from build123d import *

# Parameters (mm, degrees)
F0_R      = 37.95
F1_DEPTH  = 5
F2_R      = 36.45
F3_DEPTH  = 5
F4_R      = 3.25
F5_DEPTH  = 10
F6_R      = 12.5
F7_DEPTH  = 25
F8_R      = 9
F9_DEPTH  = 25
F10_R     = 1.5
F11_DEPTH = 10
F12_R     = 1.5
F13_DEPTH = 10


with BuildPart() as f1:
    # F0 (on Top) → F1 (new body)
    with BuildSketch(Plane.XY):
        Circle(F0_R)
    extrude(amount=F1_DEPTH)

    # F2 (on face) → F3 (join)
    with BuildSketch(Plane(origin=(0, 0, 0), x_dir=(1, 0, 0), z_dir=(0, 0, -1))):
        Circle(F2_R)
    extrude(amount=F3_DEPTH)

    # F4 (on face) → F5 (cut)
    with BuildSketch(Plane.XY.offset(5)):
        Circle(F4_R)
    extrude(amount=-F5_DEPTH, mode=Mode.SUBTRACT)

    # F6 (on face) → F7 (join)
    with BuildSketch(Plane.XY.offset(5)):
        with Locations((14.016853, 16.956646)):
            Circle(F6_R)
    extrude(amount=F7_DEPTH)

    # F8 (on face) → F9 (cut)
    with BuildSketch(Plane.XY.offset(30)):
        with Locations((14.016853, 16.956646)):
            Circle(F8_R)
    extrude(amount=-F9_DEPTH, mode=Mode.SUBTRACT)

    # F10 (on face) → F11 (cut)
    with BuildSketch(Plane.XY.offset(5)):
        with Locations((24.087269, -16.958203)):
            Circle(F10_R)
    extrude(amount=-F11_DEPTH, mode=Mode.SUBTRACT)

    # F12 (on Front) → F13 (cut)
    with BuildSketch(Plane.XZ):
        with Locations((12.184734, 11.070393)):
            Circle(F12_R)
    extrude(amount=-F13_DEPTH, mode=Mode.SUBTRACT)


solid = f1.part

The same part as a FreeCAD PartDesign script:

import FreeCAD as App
import Part
import Sketcher

doc = App.newDocument("Part")
body = doc.addObject("PartDesign::Body", "Body")

# Sketch on XY plane
sketch1 = body.newObject("Sketcher::SketchObject", "Sketch")
sketch1.AttachmentSupport = (doc.getObject("XY_Plane"), [""])
sketch1.MapMode = "FlatFace"
sketch1.addGeometry(Part.Circle(App.Vector(0, 0, 0), App.Vector(0, 0, 1), 38), False)
sketch1.addConstraint(Sketcher.Constraint("Coincident", 0, 3, -1, 1))
sketch1.addConstraint(Sketcher.Constraint("Diameter", 0, 75.9))
pad1 = body.newObject("PartDesign::Pad", "Pad")
pad1.Profile = sketch1
pad1.Length = 5

# Sketch on XY plane
sketch2 = body.newObject("Sketcher::SketchObject", "Sketch001")
sketch2.AttachmentSupport = (doc.getObject("XY_Plane"), [""])
sketch2.MapMode = "FlatFace"
sketch2.addGeometry(Part.Circle(App.Vector(0, 0, 0), App.Vector(0, 0, 1), 36), False)
sketch2.addConstraint(Sketcher.Constraint("Coincident", 0, 3, -1, 1))
sketch2.addConstraint(Sketcher.Constraint("Diameter", 0, 72.9))
pad2 = body.newObject("PartDesign::Pad", "Pad001")
pad2.Profile = sketch2
pad2.Length = 5
pad2.Reversed = True

# Sketch on XY plane
sketch3 = body.newObject("Sketcher::SketchObject", "Sketch002")
sketch3.AttachmentSupport = (doc.getObject("XY_Plane"), [""])
sketch3.MapMode = "FlatFace"
sketch3.AttachmentOffset = App.Placement(App.Vector(0, 0, 5), App.Rotation())
sketch3.addGeometry(Part.Circle(App.Vector(0, 0, 0), App.Vector(0, 0, 1), 3.2), False)
sketch3.addConstraint(Sketcher.Constraint("Coincident", 0, 3, -1, 1))
sketch3.addConstraint(Sketcher.Constraint("Diameter", 0, 6.5))
pocket1 = body.newObject("PartDesign::Pocket", "Pocket")
pocket1.Profile = sketch3
pocket1.Length = 10

# Sketch on XY plane
sketch4 = body.newObject("Sketcher::SketchObject", "Sketch003")
sketch4.AttachmentSupport = (doc.getObject("XY_Plane"), [""])
sketch4.MapMode = "FlatFace"
sketch4.AttachmentOffset = App.Placement(App.Vector(0, 0, 5), App.Rotation())
sketch4.addGeometry(Part.Circle(App.Vector(14, 17, 0), App.Vector(0, 0, 1), 12), False)
sketch4.addConstraint(Sketcher.Constraint("Diameter", 0, 25.0))
sketch4.addConstraint(Sketcher.Constraint("DistanceX", -1, 1, 0, 3, 14.016853))
sketch4.addConstraint(Sketcher.Constraint("DistanceY", -1, 1, 0, 3, 16.956646))
pad3 = body.newObject("PartDesign::Pad", "Pad002")
pad3.Profile = sketch4
pad3.Length = 25

# Sketch on XY plane
sketch5 = body.newObject("Sketcher::SketchObject", "Sketch004")
sketch5.AttachmentSupport = (doc.getObject("XY_Plane"), [""])
sketch5.MapMode = "FlatFace"
sketch5.AttachmentOffset = App.Placement(App.Vector(0, 0, 30), App.Rotation())
sketch5.addGeometry(Part.Circle(App.Vector(14, 17, 0), App.Vector(0, 0, 1), 9), False)
sketch5.addConstraint(Sketcher.Constraint("Diameter", 0, 18.0))
sketch5.addConstraint(Sketcher.Constraint("DistanceX", -1, 1, 0, 3, 14.016853))
sketch5.addConstraint(Sketcher.Constraint("DistanceY", -1, 1, 0, 3, 16.956646))
pocket2 = body.newObject("PartDesign::Pocket", "Pocket001")
pocket2.Profile = sketch5
pocket2.Length = 25

# Sketch on XY plane
sketch6 = body.newObject("Sketcher::SketchObject", "Sketch005")
sketch6.AttachmentSupport = (doc.getObject("XY_Plane"), [""])
sketch6.MapMode = "FlatFace"
sketch6.AttachmentOffset = App.Placement(App.Vector(0, 0, 5), App.Rotation())
sketch6.addGeometry(Part.Circle(App.Vector(24.1, -17, 0), App.Vector(0, 0, 1), 1.5), False)
sketch6.addConstraint(Sketcher.Constraint("Diameter", 0, 3.0))
sketch6.addConstraint(Sketcher.Constraint("DistanceX", -1, 1, 0, 3, 24.087269))
sketch6.addConstraint(Sketcher.Constraint("DistanceY", 0, 3, -1, 1, 16.958203))
pocket3 = body.newObject("PartDesign::Pocket", "Pocket002")
pocket3.Profile = sketch6
pocket3.Length = 10

# Sketch on XZ plane
sketch7 = body.newObject("Sketcher::SketchObject", "Sketch006")
sketch7.AttachmentSupport = (doc.getObject("XZ_Plane"), [""])
sketch7.MapMode = "FlatFace"
sketch7.addGeometry(Part.Circle(App.Vector(12.2, 11.1, 0), App.Vector(0, 0, 1), 1.5), False)
sketch7.addConstraint(Sketcher.Constraint("Diameter", 0, 3.0))
sketch7.addConstraint(Sketcher.Constraint("DistanceX", -1, 1, 0, 3, 12.184734))
sketch7.addConstraint(Sketcher.Constraint("DistanceY", -1, 1, 0, 3, 11.070393))
pocket4 = body.newObject("PartDesign::Pocket", "Pocket003")
pocket4.Profile = sketch7
pocket4.Length = 10

doc.recompute()
